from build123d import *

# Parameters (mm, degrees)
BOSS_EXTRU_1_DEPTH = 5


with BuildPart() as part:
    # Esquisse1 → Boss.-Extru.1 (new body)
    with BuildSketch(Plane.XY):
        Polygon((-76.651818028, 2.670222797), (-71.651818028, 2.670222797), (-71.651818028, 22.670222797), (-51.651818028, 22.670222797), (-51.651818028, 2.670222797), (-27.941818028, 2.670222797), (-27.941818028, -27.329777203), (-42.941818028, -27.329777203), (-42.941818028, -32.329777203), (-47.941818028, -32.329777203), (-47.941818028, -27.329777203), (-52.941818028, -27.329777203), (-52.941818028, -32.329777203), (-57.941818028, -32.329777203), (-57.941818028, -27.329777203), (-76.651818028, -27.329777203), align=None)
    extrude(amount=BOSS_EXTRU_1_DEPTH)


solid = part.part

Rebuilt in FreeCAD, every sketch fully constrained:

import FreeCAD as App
import Part
import Sketcher
from FreeCAD import Vector


def add_polygon(sketch, points):
    """Adds a closed chain of lines whose ends are joined by coincident constraints."""
    first, n = sketch.GeometryCount, len(points)
    for a, b in zip(points, points[1:] + points[:1]):
        sketch.addGeometry(Part.LineSegment(App.Vector(*a, 0), App.Vector(*b, 0)), False)
    for i in range(n):
        sketch.addConstraint(Sketcher.Constraint("Coincident", first + i, 2, first + (i + 1) % n, 1))

doc = App.newDocument("Part")
body = doc.addObject("PartDesign::Body", "Body")

# Sketch on XY plane
sketch1 = body.newObject("Sketcher::SketchObject", "Sketch")
sketch1.AttachmentSupport = (doc.getObject("XY_Plane"), [""])
sketch1.MapMode = "FlatFace"
add_polygon(sketch1, [(-72, 3), (-77, 3), (-77, -27), (-58, -27), (-58, -32), (-53, -32), (-53, -27), (-48, -27), (-48, -32), (-43, -32), (-43, -27), (-28, -27), (-28, 3), (-52, 3), (-52, 23), (-72, 23)])  # lines 0-15
sketch1.addConstraint(Sketcher.Constraint("Horizontal", 0))
sketch1.addConstraint(Sketcher.Constraint("Vertical", 1))
sketch1.addConstraint(Sketcher.Constraint("Horizontal", 2))
sketch1.addConstraint(Sketcher.Constraint("Vertical", 3))
sketch1.addConstraint(Sketcher.Constraint("Horizontal", 4))
sketch1.addConstraint(Sketcher.Constraint("Vertical", 5))
sketch1.addConstraint(Sketcher.Constraint("Horizontal", 6))
sketch1.addConstraint(Sketcher.Constraint("Vertical", 7))
sketch1.addConstraint(Sketcher.Constraint("Horizontal", 8))
sketch1.addConstraint(Sketcher.Constraint("Vertical", 9))
sketch1.addConstraint(Sketcher.Constraint("Horizontal", 10))
sketch1.addConstraint(Sketcher.Constraint("Vertical", 11))
sketch1.addConstraint(Sketcher.Constraint("Horizontal", 12))
sketch1.addConstraint(Sketcher.Constraint("Vertical", 13))
sketch1.addConstraint(Sketcher.Constraint("Horizontal", 14))
sketch1.addConstraint(Sketcher.Constraint("Vertical", 15))
sketch1.addConstraint(Sketcher.Constraint("Horizontal", 2, 2, 5, 2))
sketch1.addConstraint(Sketcher.Constraint("Horizontal", 4, 2, 7, 2))
sketch1.addConstraint(Sketcher.Constraint("Horizontal", 6, 2, 9, 2))
sketch1.addConstraint(Sketcher.Constraint("Horizontal", 0, 2, 11, 2))
sketch1.addConstraint(Sketcher.Constraint("Equal", 0, 4))
sketch1.addConstraint(Sketcher.Constraint("Equal", 4, 6))
sketch1.addConstraint(Sketcher.Constraint("Equal", 6, 8))
sketch1.addConstraint(Sketcher.Constraint("Equal", 8, 3))
sketch1.addConstraint(Sketcher.Constraint("Equal", 14, 13))
sketch1.addConstraint(Sketcher.Constraint("DistanceX", 0, 2, 0, 1, 5.0))
sketch1.addConstraint(Sketcher.Constraint("DistanceX", 10, 1, 10, 2, 15.0))
sketch1.addConstraint(Sketcher.Constraint("DistanceX", 14, 2, 14, 1, 20.0))
sketch1.addConstraint(Sketcher.Constraint("DistanceY", 1, 2, 1, 1, 30.0))
sketch1.addConstraint(Sketcher.Constraint("DistanceX", 2, 1, 2, 2, 18.71))
sketch1.addConstraint(Sketcher.Constraint("DistanceX", 0, 2, -1, 1, 76.651818))
sketch1.addConstraint(Sketcher.Constraint("DistanceY", -1, 1, 0, 2, 2.670223))
pad1 = body.newObject("PartDesign::Pad", "Pad")
pad1.Profile = sketch1
pad1.Length = 5

doc.recompute()
